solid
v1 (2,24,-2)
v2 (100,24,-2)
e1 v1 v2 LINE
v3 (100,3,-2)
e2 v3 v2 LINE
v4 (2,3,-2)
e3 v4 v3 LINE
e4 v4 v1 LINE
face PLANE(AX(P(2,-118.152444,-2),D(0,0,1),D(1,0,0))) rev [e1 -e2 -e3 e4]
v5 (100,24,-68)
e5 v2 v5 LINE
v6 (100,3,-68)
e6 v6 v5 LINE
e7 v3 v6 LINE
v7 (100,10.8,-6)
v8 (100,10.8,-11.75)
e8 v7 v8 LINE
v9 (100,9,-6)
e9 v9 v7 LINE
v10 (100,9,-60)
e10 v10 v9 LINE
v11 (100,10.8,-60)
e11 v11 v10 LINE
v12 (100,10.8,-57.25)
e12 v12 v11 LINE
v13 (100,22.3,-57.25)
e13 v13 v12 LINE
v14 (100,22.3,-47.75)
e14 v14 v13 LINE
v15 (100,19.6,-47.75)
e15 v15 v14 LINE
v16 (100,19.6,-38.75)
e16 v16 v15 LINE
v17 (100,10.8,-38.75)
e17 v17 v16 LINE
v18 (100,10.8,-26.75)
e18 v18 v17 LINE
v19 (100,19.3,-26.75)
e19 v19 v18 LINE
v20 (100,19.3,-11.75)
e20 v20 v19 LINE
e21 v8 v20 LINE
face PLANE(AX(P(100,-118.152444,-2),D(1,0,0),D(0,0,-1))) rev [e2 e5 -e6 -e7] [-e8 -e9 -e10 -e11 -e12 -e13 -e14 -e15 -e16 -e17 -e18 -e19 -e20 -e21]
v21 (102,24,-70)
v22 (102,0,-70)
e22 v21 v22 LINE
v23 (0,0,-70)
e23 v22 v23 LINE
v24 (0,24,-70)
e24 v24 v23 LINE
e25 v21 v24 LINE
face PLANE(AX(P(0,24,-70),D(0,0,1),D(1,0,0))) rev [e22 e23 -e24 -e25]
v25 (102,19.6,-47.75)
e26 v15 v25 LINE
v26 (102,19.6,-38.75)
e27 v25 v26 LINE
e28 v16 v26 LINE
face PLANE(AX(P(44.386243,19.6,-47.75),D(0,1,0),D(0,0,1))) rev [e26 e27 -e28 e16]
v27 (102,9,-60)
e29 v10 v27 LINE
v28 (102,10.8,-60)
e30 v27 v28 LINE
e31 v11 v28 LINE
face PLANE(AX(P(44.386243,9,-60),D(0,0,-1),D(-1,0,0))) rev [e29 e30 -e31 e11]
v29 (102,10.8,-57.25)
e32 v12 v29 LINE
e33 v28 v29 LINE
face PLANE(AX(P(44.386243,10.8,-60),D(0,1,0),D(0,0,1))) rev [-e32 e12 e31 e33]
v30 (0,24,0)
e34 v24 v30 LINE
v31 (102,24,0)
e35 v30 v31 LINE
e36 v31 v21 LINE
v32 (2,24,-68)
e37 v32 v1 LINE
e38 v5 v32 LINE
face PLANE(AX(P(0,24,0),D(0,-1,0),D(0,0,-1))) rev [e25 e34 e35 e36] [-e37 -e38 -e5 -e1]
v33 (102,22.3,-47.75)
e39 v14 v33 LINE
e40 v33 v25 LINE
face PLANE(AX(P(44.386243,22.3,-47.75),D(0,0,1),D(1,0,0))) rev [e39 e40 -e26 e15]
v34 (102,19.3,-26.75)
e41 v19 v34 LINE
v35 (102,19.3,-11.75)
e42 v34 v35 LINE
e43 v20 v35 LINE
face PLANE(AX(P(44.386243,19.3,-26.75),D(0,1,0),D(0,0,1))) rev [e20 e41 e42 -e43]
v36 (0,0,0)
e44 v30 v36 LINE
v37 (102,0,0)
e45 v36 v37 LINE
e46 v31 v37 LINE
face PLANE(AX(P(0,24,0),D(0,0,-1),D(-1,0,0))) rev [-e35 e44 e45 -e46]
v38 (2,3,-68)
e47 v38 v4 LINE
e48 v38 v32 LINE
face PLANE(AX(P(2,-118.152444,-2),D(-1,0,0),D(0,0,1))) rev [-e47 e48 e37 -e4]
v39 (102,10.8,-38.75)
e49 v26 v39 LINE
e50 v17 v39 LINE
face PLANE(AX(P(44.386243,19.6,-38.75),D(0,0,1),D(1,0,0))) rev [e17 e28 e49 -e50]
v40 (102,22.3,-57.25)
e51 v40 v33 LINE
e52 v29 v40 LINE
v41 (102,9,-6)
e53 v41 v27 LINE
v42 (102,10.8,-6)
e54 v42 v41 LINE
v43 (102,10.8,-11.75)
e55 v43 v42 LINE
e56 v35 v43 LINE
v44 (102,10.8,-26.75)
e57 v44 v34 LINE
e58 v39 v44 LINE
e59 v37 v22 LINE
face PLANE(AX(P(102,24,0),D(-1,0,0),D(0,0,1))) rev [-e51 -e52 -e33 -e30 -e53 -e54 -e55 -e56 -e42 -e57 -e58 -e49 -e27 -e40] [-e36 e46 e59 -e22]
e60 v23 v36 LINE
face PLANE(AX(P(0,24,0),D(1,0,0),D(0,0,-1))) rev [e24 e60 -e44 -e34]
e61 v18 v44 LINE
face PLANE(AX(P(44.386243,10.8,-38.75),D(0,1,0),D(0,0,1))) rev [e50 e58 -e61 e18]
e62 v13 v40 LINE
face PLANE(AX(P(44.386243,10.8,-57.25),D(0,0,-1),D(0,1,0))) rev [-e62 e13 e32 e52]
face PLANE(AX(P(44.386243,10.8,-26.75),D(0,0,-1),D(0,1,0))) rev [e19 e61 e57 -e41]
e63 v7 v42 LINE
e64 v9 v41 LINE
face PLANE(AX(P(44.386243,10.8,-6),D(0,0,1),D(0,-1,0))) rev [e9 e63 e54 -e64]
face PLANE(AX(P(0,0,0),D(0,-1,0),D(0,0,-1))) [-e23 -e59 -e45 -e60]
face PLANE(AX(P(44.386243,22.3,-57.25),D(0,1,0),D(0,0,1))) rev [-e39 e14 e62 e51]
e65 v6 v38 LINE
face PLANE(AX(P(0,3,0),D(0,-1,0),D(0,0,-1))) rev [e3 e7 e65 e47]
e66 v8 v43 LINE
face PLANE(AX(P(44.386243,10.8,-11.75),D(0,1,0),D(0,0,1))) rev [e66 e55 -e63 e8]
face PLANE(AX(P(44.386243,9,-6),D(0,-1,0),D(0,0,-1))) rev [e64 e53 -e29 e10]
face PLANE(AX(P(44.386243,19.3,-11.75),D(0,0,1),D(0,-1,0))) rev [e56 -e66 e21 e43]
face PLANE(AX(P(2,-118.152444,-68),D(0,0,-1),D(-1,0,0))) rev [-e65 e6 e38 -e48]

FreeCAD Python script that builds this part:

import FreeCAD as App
import Part
import Sketcher
Q = App.Units.Quantity


def add_polygon(sketch, points):
    """Adds a closed chain of lines whose ends are joined by coincident constraints."""
    first, n = sketch.GeometryCount, len(points)
    for a, b in zip(points, points[1:] + points[:1]):
        sketch.addGeometry(Part.LineSegment(App.Vector(*a, 0), App.Vector(*b, 0)), False)
    for i in range(n):
        sketch.addConstraint(Sketcher.Constraint("Coincident", first + i, 2, first + (i + 1) % n, 1))

doc = App.newDocument("Part")
body = doc.addObject("PartDesign::Body", "Body")

sketch1 = doc.addObject("Sketcher::SketchObject", "Sketch")
body.addObject(sketch1)
sketch1.AttachmentSupport = (doc.XZ_Plane, [""])
sketch1.MapMode = "FlatFace"
add_polygon(sketch1, [(0, -70), (0, 0), (102, 0), (102, -70)])
sketch1.addConstraint([
    Sketcher.Constraint("Vertical", 0),
    Sketcher.Constraint("Horizontal", 1),
    Sketcher.Constraint("Vertical", 2),
    Sketcher.Constraint("Horizontal", 3),
    Sketcher.Constraint("Coincident", 0, 2, -1, 1),
    Sketcher.Constraint("DistanceX", 1, 1, 1, 2, Q("102 mm")),
    Sketcher.Constraint("DistanceY", 0, 1, 0, 2, Q("70 mm")),
])
pad1 = doc.addObject("PartDesign::Pad", "Pad")
body.addObject(pad1)
pad1.Profile = sketch1
pad1.Length = 24
pad1.Reversed = True

sketch2 = doc.addObject("Sketcher::SketchObject", "Sketch001")
body.addObject(sketch2)
sketch2.AttachmentSupport = (doc.XZ_Plane, [""])
sketch2.MapMode = "FlatFace"
sketch2.AttachmentOffset = App.Placement(App.Vector(0, 0, -24), App.Rotation())
add_polygon(sketch2, [(2, -68), (2, -2), (100, -2), (100, -68)])
sketch2.addConstraint([
    Sketcher.Constraint("Vertical", 0),
    Sketcher.Constraint("Horizontal", 1),
    Sketcher.Constraint("Vertical", 2),
    Sketcher.Constraint("Horizontal", 3),
    Sketcher.Constraint("DistanceX", 1, 1, 1, 2, Q("98 mm")),
    Sketcher.Constraint("DistanceY", 0, 1, 0, 2, Q("66 mm")),
    Sketcher.Constraint("DistanceX", -1, 1, 0, 2, Q("2 mm")),
    Sketcher.Constraint("DistanceY", 0, 2, -1, 1, Q("2 mm")),
])
pocket1 = doc.addObject("PartDesign::Pocket", "Pocket")
body.addObject(pocket1)
pocket1.Profile = sketch2
pocket1.Length = 21
pocket1.Reversed = True

sketch3 = doc.addObject("Sketcher::SketchObject", "Sketch002")
body.addObject(sketch3)
sketch3.AttachmentSupport = (doc.YZ_Plane, [""])
sketch3.MapMode = "FlatFace"
sketch3.AttachmentOffset = App.Placement(App.Vector(0, 0, 102), App.Rotation())
add_polygon(sketch3, [(9, -6), (9, -60), (10.8, -60), (10.8, -57.2), (22.3, -57.2), (22.3, -47.8), (19.6, -47.8), (19.6, -38.8), (10.8, -38.8), (10.8, -26.8), (19.3, -26.8), (19.3, -11.8), (10.8, -11.8), (10.8, -6)])
sketch3.addConstraint([
    Sketcher.Constraint("Vertical", 0),
    Sketcher.Constraint("Horizontal", 1),
    Sketcher.Constraint("Vertical", 2),
    Sketcher.Constraint("Horizontal", 3),
    Sketcher.Constraint("Vertical", 4),
    Sketcher.Constraint("Horizontal", 5),
    Sketcher.Constraint("Vertical", 6),
    Sketcher.Constraint("Horizontal", 7),
    Sketcher.Constraint("Vertical", 8),
    Sketcher.Constraint("Horizontal", 9),
    Sketcher.Constraint("Vertical", 10),
    Sketcher.Constraint("Horizontal", 11),
    Sketcher.Constraint("Vertical", 12),
    Sketcher.Constraint("Horizontal", 13),
    Sketcher.Constraint("Vertical", 2, 2, 7, 2),
    Sketcher.Constraint("Vertical", 8, 2, 11, 2),
    Sketcher.Constraint("DistanceY", 0, 2, 0, 1, Q("54 mm")),
    Sketcher.Constraint("DistanceY", 6, 1, 6, 2, Q("9 mm")),
    Sketcher.Constraint("DistanceY", 8, 1, 8, 2, Q("12 mm")),
    Sketcher.Constraint("DistanceY", 10, 1, 10, 2, Q("15 mm")),
    Sketcher.Constraint("DistanceX", 1, 1, 1, 2, Q("1.8 mm")),
    Sketcher.Constraint("DistanceX", 3, 1, 3, 2, Q("11.5 mm")),
    Sketcher.Constraint("DistanceX", 5, 2, 5, 1, Q("2.7 mm")),
    Sketcher.Constraint("DistanceX", 9, 1, 9, 2, Q("8.5 mm")),
    Sketcher.Constraint("DistanceY", 4, 1, 4, 2, Q("9.5 mm")),
    Sketcher.Constraint("DistanceX", -1, 1, 0, 2, Q("9 mm")),
    Sketcher.Constraint("DistanceY", 0, 2, -1, 1, Q("60 mm")),
    Sketcher.Constraint("DistanceY", 2, 1, 2, 2, Q("2.75 mm")),
])
pocket2 = doc.addObject("PartDesign::Pocket", "Pocket001")
body.addObject(pocket2)
pocket2.Profile = sketch3
pocket2.Length = 2

doc.recompute()
